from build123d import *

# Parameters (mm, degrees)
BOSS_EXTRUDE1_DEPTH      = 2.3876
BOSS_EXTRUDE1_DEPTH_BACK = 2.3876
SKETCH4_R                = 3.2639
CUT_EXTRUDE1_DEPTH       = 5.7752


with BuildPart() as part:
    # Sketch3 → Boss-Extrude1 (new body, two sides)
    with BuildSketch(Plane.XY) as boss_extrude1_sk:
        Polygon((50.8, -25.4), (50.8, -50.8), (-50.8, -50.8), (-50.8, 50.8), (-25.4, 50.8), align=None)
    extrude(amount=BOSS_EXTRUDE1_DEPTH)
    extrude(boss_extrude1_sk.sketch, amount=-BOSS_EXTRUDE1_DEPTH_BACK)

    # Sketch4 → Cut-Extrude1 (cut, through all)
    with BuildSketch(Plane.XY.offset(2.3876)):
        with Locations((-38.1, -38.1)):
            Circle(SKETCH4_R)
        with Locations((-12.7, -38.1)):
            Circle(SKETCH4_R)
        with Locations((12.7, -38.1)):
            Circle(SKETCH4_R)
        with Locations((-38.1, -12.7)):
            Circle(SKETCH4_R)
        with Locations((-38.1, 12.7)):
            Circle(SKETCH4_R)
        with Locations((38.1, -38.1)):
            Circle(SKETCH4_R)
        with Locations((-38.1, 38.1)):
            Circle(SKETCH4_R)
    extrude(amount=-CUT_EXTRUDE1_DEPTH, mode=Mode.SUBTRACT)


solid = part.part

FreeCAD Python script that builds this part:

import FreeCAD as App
import Part
import Sketcher
from FreeCAD import Vector
Q = App.Units.Quantity


def add_polygon(sketch, points):
    """Adds a closed chain of lines whose ends are joined by coincident constraints."""
    first, n = sketch.GeometryCount, len(points)
    for a, b in zip(points, points[1:] + points[:1]):
        sketch.addGeometry(Part.LineSegment(App.Vector(*a, 0), App.Vector(*b, 0)), False)
    for i in range(n):
        sketch.addConstraint(Sketcher.Constraint("Coincident", first + i, 2, first + (i + 1) % n, 1))

doc = App.newDocument("Part")
body = doc.addObject("PartDesign::Body", "Body")

# Sketch on XY plane
sketch1 = body.newObject("Sketcher::SketchObject", "Sketch")
sketch1.AttachmentSupport = (doc.getObject("XY_Plane"), [""])
sketch1.MapMode = "FlatFace"
add_polygon(sketch1, [(50.8, -50.8), (50.8, -25.4), (-25.4, 50.8), (-50.8, 50.8), (-50.8, -50.8)])  # lines 0-4
sketch1.addConstraint(Sketcher.Constraint("Vertical", 0))
sketch1.addConstraint(Sketcher.Constraint("Horizontal", 2))
sketch1.addConstraint(Sketcher.Constraint("Vertical", 3))
sketch1.addConstraint(Sketcher.Constraint("Horizontal", 4))
sketch1.addConstraint(Sketcher.Constraint("Symmetric", 2, 2, 4, 2, -1, 1))
sketch1.addConstraint(Sketcher.Constraint("Equal", 2, 0))
sketch1.addConstraint(Sketcher.Constraint("Equal", 4, 3))
sketch1.addConstraint(Sketcher.Constraint("DistanceX", 2, 2, 2, 1, Q("1 in")))
sketch1.addConstraint(Sketcher.Constraint("DistanceX", 4, 1, 4, 2, Q("4 in")))
pad1 = body.newObject("PartDesign::Pad", "Pad")
pad1.Profile = sketch1
pad1.Type = "TwoLengths"
pad1.Length = Q("0.094 in")
pad1.Length2 = Q("0.094 in")

# Sketch on XY plane
sketch2 = body.newObject("Sketcher::SketchObject", "Sketch001")
sketch2.AttachmentSupport = (doc.getObject("XY_Plane"), [""])
sketch2.MapMode = "FlatFace"
sketch2.AttachmentOffset = App.Placement(Vector(0, 0, 0.094 * 25.4), App.Rotation())
sketch2.addGeometry(Part.Circle(Vector(-38.1, -38.1, 0), Vector(0, 0, 1), 3.2639), False)
sketch2.addGeometry(Part.Circle(Vector(-12.7, -38.1, 0), Vector(0, 0, 1), 3.2639), False)
sketch2.addGeometry(Part.Circle(Vector(12.7, -38.1, 0), Vector(0, 0, 1), 3.2639), False)
sketch2.addGeometry(Part.Circle(Vector(-38.1, -12.7, 0), Vector(0, 0, 1), 3.2639), False)
sketch2.addGeometry(Part.Circle(Vector(-38.1, 12.7, 0), Vector(0, 0, 1), 3.2639), False)
sketch2.addGeometry(Part.Circle(Vector(38.1, -38.1, 0), Vector(0, 0, 1), 3.2639), False)
sketch2.addGeometry(Part.Circle(Vector(-38.1, 38.1, 0), Vector(0, 0, 1), 3.2639), False)
sketch2.addConstraint(Sketcher.Constraint("Equal", 0, 1))
sketch2.addConstraint(Sketcher.Constraint("Equal", 1, 2))
sketch2.addConstraint(Sketcher.Constraint("Equal", 2, 3))
sketch2.addConstraint(Sketcher.Constraint("Equal", 3, 4))
sketch2.addConstraint(Sketcher.Constraint("Equal", 4, 5))
sketch2.addConstraint(Sketcher.Constraint("Equal", 5, 6))
sketch2.addConstraint(Sketcher.Constraint("Symmetric", 5, 3, 6, 3, -1, 1))
sketch2.addConstraint(Sketcher.Constraint("Symmetric", 1, 3, 2, 3, -2))
sketch2.addConstraint(Sketcher.Constraint("Symmetric", 0, 3, 5, 3, -2))
sketch2.addConstraint(Sketcher.Constraint("Symmetric", 3, 3, 4, 3, -1))
sketch2.addConstraint(Sketcher.Constraint("Horizontal", 0, 3, 1, 3))
sketch2.addConstraint(Sketcher.Constraint("Vertical", 0, 3, 3, 3))
sketch2.addConstraint(Sketcher.Constraint("Diameter", 0, Q("0.257 in")))
sketch2.addConstraint(Sketcher.Constraint("DistanceX", 0, 3, 1, 3, Q("1 in")))
sketch2.addConstraint(Sketcher.Constraint("DistanceX", 1, 3, 2, 3, Q("1 in")))
sketch2.addConstraint(Sketcher.Constraint("DistanceY", 0, 3, 3, 3, Q("1 in")))
sketch2.addConstraint(Sketcher.Constraint("DistanceY", 3, 3, 4, 3, Q("1 in")))
pocket1 = body.newObject("PartDesign::Pocket", "Pocket")
pocket1.Profile = sketch2
pocket1.Type = "ThroughAll"

doc.recompute()
